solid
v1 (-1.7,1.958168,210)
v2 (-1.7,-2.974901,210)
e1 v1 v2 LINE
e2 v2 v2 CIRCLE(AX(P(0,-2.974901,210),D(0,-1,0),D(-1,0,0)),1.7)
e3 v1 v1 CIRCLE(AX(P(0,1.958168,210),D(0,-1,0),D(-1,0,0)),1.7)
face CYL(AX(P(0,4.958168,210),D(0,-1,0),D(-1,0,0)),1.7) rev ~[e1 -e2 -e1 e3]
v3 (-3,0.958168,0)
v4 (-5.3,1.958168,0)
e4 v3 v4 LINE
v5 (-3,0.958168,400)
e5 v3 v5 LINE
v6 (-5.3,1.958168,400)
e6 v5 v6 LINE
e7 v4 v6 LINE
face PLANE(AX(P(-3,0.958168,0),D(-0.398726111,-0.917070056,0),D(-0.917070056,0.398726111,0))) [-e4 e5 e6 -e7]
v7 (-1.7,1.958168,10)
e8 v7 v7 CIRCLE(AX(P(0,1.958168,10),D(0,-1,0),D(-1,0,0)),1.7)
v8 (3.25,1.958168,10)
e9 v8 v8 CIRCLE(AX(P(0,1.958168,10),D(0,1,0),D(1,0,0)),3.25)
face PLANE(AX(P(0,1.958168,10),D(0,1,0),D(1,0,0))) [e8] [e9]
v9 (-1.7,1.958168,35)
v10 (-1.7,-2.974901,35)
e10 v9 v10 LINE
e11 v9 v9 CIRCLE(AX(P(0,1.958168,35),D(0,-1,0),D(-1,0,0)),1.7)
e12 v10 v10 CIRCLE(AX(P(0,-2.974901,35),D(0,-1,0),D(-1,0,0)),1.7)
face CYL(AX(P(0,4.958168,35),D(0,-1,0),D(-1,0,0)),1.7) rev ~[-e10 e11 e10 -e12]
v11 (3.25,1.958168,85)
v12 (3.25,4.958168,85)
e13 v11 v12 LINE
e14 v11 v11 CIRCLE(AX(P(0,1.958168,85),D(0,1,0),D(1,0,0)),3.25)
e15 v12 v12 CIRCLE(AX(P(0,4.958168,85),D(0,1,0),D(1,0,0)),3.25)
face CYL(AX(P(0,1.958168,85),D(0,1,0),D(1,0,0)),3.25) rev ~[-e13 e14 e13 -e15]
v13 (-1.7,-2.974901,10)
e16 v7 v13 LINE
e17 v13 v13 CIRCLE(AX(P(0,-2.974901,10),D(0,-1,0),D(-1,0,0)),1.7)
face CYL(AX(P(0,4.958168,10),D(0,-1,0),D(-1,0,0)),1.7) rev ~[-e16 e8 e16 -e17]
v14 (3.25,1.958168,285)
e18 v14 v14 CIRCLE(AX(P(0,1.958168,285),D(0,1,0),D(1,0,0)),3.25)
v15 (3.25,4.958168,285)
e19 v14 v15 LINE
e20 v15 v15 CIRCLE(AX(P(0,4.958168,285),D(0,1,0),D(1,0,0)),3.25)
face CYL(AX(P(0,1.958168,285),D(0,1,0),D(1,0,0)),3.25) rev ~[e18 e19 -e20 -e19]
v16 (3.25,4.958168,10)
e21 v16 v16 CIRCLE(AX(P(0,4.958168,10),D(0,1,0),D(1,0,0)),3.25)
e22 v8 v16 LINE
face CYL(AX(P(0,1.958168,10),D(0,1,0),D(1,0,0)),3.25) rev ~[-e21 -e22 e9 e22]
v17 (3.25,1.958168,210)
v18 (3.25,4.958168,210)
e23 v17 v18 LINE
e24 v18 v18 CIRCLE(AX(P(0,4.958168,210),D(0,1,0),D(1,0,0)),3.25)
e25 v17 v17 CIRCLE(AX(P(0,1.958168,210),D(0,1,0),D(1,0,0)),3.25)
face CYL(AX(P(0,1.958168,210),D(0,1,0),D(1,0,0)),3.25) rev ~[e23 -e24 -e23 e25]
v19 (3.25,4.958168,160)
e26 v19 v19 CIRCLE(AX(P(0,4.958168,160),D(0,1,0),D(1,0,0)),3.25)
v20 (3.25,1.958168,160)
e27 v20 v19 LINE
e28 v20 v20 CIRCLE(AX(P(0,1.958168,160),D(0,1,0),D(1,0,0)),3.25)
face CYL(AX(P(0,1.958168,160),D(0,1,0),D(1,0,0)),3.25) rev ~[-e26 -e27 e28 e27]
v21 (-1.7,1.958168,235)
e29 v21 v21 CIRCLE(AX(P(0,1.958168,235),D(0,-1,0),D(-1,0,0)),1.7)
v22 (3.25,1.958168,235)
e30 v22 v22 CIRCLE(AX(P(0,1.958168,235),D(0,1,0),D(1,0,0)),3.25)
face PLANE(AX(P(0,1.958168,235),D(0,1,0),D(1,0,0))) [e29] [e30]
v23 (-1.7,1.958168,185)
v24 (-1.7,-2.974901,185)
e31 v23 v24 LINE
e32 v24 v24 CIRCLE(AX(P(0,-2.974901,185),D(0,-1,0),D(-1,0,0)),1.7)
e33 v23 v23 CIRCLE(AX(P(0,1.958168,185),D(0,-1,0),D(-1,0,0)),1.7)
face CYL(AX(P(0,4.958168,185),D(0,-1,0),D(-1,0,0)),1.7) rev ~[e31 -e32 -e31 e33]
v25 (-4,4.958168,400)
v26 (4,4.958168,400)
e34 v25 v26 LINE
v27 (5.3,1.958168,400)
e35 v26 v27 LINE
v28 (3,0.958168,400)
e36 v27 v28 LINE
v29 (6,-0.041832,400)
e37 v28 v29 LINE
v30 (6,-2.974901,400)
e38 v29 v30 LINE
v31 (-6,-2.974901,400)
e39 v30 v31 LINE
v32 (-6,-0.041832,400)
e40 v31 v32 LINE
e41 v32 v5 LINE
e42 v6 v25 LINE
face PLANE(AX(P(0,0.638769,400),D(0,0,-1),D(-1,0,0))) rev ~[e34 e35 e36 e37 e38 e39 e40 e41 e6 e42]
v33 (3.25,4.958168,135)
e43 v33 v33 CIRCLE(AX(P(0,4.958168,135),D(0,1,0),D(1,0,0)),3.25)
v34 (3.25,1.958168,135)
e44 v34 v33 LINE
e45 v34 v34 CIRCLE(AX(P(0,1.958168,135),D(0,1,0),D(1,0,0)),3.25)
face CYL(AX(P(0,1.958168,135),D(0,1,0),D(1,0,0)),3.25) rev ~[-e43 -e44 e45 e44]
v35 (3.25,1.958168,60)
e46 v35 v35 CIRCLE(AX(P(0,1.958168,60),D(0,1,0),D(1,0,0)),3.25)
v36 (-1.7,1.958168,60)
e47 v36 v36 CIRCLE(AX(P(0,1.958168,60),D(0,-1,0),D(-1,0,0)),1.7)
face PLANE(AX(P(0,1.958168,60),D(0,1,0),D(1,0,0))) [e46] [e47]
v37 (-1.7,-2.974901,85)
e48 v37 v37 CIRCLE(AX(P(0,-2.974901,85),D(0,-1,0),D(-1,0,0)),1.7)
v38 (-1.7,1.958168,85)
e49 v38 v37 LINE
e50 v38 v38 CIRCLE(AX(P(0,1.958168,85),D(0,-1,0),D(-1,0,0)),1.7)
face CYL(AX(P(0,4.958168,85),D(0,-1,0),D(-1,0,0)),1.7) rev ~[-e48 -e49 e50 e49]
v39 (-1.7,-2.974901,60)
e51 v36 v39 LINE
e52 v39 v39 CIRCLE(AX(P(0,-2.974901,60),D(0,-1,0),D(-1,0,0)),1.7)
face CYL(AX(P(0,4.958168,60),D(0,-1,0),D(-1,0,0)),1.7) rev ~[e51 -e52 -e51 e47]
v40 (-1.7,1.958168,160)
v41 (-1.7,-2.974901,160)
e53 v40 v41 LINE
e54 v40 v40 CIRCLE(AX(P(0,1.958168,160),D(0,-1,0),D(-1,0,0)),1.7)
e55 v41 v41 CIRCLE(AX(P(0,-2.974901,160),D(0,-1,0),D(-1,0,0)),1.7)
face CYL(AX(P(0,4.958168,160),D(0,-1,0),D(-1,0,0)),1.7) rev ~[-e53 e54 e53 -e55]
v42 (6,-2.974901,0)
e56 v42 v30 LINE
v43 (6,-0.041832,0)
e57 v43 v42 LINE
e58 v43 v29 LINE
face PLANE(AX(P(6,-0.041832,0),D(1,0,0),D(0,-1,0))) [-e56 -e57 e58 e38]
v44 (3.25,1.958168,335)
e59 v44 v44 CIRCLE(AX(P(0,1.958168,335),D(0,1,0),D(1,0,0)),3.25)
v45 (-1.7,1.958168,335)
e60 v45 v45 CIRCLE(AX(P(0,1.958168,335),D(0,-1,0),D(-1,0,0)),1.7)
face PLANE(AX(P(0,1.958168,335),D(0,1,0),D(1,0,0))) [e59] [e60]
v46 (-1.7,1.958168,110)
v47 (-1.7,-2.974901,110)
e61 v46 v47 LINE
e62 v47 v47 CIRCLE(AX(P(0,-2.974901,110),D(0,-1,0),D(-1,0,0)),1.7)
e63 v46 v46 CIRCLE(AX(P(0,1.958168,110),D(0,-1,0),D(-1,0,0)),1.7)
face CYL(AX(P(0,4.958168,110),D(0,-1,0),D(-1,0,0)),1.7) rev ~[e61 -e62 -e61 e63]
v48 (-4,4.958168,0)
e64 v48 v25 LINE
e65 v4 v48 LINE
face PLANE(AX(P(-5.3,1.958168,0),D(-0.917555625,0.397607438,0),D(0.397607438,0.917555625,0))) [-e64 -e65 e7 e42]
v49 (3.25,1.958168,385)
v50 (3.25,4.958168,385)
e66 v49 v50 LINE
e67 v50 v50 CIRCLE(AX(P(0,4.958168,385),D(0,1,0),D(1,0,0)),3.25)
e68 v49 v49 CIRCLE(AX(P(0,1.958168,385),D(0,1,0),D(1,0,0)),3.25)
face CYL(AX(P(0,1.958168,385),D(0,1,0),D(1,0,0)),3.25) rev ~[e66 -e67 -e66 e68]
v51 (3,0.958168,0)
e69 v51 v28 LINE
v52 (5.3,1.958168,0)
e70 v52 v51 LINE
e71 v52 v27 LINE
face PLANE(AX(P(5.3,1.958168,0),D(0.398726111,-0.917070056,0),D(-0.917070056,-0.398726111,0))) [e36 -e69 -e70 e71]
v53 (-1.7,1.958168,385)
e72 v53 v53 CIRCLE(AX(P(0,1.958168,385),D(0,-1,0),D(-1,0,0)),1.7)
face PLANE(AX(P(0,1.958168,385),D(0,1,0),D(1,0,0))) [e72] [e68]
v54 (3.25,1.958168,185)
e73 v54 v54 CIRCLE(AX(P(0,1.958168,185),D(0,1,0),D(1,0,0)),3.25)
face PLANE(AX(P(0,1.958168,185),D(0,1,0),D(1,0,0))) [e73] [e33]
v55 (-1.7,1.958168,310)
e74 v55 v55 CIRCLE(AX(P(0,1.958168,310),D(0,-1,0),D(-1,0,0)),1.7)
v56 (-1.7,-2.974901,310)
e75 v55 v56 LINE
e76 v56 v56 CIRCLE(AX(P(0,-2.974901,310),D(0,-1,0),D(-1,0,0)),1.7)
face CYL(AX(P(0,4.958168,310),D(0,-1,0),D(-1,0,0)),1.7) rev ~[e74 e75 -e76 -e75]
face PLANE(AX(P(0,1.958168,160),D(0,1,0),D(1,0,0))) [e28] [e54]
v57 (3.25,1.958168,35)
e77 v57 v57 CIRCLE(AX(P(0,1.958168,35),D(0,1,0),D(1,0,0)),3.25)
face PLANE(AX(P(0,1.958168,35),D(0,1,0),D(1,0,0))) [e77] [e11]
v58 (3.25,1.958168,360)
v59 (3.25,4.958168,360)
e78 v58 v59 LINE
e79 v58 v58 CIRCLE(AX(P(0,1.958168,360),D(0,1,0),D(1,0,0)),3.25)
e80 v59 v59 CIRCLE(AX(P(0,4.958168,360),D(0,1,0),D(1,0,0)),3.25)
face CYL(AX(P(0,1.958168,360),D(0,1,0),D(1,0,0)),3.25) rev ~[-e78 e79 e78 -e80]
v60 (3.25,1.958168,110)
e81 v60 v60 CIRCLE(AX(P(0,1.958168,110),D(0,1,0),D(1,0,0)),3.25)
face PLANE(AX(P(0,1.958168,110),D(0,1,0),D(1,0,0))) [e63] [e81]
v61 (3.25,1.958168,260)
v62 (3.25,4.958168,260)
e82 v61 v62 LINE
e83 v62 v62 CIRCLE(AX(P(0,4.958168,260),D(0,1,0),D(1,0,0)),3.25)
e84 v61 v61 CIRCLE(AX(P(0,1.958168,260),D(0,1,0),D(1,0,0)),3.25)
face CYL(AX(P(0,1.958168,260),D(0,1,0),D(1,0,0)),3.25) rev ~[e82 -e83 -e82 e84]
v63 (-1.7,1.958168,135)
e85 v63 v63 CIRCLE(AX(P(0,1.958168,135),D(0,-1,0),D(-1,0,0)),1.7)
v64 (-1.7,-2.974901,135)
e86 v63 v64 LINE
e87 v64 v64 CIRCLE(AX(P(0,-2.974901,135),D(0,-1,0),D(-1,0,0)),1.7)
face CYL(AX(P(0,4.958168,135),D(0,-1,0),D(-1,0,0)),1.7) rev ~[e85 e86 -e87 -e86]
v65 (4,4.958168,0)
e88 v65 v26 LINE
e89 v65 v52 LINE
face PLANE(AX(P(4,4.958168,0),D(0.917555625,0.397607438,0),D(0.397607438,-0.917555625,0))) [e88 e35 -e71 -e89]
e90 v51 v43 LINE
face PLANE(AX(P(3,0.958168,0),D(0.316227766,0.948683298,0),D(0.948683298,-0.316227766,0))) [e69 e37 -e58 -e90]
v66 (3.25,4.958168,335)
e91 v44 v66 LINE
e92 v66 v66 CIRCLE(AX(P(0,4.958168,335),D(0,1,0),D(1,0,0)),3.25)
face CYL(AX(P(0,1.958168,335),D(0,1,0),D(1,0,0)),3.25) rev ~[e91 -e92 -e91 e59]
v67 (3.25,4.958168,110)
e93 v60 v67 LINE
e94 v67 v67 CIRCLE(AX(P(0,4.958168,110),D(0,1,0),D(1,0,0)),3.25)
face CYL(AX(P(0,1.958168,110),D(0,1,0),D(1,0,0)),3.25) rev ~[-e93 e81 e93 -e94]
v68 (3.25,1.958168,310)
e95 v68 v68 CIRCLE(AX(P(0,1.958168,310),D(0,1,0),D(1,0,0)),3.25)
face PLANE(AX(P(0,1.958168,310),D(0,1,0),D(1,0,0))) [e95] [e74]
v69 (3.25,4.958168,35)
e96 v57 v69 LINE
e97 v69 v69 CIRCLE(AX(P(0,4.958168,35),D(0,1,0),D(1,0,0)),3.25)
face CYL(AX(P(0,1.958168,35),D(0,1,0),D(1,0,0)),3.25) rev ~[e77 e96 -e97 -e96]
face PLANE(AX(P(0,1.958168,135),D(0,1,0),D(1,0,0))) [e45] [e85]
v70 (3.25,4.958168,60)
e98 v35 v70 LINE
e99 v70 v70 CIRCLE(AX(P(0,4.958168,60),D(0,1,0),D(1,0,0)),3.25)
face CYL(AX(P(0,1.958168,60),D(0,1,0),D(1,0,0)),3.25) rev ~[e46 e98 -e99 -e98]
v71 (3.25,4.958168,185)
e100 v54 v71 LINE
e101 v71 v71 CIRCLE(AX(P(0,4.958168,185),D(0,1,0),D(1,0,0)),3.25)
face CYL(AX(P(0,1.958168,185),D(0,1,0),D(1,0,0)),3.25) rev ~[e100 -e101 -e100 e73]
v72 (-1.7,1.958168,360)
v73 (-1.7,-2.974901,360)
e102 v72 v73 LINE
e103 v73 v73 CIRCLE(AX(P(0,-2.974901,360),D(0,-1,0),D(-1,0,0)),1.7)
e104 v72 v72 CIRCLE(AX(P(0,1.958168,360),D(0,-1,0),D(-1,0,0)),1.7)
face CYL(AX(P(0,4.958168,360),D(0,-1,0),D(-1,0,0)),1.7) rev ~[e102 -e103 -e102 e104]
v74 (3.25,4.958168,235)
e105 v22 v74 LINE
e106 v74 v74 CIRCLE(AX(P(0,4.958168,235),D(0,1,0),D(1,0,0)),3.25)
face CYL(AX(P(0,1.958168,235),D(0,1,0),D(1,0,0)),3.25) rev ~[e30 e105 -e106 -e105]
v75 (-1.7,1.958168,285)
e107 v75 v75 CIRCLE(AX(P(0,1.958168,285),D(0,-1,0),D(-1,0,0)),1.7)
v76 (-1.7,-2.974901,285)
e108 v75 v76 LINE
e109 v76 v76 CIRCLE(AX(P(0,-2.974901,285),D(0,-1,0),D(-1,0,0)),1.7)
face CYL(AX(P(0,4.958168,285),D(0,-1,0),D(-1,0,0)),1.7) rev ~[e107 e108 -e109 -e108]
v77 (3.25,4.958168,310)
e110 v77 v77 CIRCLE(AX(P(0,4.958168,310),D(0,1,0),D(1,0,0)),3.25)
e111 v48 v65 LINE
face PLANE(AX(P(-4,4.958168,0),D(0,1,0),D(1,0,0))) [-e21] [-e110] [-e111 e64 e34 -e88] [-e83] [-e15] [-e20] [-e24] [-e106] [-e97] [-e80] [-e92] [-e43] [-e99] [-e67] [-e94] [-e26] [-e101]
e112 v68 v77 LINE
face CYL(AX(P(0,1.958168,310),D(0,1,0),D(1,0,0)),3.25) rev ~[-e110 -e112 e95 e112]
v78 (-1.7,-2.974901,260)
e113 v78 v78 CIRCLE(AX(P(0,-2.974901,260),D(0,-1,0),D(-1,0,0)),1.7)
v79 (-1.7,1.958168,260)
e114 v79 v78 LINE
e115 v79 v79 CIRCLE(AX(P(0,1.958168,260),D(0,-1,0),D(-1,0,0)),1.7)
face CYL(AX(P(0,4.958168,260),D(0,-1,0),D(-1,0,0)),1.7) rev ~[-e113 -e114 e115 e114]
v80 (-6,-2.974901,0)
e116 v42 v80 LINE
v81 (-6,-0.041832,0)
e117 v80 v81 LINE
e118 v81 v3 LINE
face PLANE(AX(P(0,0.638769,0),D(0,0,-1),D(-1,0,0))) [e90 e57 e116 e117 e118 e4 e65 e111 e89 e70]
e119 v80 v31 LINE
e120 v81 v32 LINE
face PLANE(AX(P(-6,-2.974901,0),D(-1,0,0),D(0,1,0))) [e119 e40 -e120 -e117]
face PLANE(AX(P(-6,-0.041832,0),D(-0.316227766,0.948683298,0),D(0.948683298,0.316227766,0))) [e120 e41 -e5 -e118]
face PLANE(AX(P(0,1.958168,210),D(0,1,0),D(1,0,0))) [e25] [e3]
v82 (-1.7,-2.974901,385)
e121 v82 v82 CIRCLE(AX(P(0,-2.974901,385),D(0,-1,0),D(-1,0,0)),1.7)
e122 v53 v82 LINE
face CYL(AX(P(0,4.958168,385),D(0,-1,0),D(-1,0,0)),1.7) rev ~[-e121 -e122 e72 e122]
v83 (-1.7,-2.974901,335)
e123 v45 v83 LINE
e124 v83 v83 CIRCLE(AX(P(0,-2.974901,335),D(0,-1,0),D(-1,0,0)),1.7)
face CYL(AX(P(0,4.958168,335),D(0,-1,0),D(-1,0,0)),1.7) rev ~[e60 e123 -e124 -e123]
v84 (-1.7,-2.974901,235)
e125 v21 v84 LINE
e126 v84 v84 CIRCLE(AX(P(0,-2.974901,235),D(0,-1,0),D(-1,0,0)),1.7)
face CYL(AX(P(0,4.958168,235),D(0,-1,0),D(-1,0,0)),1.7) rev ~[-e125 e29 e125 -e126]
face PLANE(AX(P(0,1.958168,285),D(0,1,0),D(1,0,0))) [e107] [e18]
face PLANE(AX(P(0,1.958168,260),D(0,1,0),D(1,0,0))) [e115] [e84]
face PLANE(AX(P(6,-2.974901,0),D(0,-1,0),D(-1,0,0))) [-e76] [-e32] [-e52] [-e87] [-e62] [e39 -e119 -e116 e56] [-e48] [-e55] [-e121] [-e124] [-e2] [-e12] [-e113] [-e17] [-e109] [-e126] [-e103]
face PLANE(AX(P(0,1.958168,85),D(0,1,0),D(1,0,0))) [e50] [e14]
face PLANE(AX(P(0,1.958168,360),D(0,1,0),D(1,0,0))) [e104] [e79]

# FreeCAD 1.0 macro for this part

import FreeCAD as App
import Part
import Sketcher

V = App.Vector


def add_polygon(sketch, points):
    """Adds a closed chain of lines whose ends are joined by coincident constraints."""
    first, n = sketch.GeometryCount, len(points)
    for a, b in zip(points, points[1:] + points[:1]):
        sketch.addGeometry(Part.LineSegment(App.Vector(*a, 0), App.Vector(*b, 0)), False)
    for i in range(n):
        sketch.addConstraint(Sketcher.Constraint("Coincident", first + i, 2, first + (i + 1) % n, 1))

doc = App.newDocument("Part")
body = doc.addObject("PartDesign::Body", "Body")

sketch1 = body.newObject("Sketcher::SketchObject", "Sketch")
sketch1.AttachmentSupport = (doc.getObject("XY_Plane"), [""])
sketch1.MapMode = "FlatFace"
add_polygon(sketch1, [(4, 5), (5.3, 2), (3, 1), (6, 0), (6, -3), (-6, -3), (-6, 0), (-3, 1), (-5.3, 2), (-4, 5)])
sketch1.addConstraint([
    Sketcher.Constraint("Vertical", 3),
    Sketcher.Constraint("Horizontal", 4),
    Sketcher.Constraint("Vertical", 5),
    Sketcher.Constraint("Horizontal", 9),
    Sketcher.Constraint("Symmetric", 2, 2, 5, 2, -2),
    Sketcher.Constraint("Symmetric", 1, 2, 6, 2, -2),
    Sketcher.Constraint("Symmetric", 0, 2, 7, 2, -2),
    Sketcher.Constraint("Equal", 0, 8),
    Sketcher.Constraint("DistanceX", 4, 2, 4, 1, 12.0),
    Sketcher.Constraint("DistanceX", 9, 1, 9, 2, 8.0),
    Sketcher.Constraint("DistanceX", -1, 1, 1, 2, 3.0),
    Sketcher.Constraint("DistanceY", 1, 2, 0, 2, 1.0),
    Sketcher.Constraint("DistanceY", 2, 2, 0, 2, 2.0),
    Sketcher.Constraint("DistanceY", 7, 2, 8, 2, 3.0),
    Sketcher.Constraint("DistanceX", -1, 1, 0, 2, 5.3),
    Sketcher.Constraint("DistanceY", 3, 2, 3, 1, 2.933069),
    Sketcher.Constraint("DistanceY", 3, 2, -1, 1, 2.974901),
])
pad1 = body.newObject("PartDesign::Pad", "Pad")
pad1.Profile = sketch1
pad1.Length = 400

sketch2 = body.newObject("Sketcher::SketchObject", "Sketch001")
sketch2.AttachmentSupport = (doc.getObject("XZ_Plane"), [""])
sketch2.MapMode = "FlatFace"
sketch2.AttachmentOffset = App.Placement(V(0, 0, -4.958168), App.Rotation())
sketch2.addGeometry([
    Part.Circle(V(0, 385, 0), V(0, 0, 1), 1.7),
    Part.Circle(V(0, 360, 0), V(0, 0, 1), 1.7),
    Part.Circle(V(0, 335, 0), V(0, 0, 1), 1.7),
    Part.Circle(V(0, 310, 0), V(0, 0, 1), 1.7),
    Part.Circle(V(0, 285, 0), V(0, 0, 1), 1.7),
    Part.Circle(V(0, 260, 0), V(0, 0, 1), 1.7),
    Part.Circle(V(0, 235, 0), V(0, 0, 1), 1.7),
    Part.Circle(V(0, 210, 0), V(0, 0, 1), 1.7),
    Part.Circle(V(0, 185, 0), V(0, 0, 1), 1.7),
    Part.Circle(V(0, 160, 0), V(0, 0, 1), 1.7),
    Part.Circle(V(0, 135, 0), V(0, 0, 1), 1.7),
    Part.Circle(V(0, 110, 0), V(0, 0, 1), 1.7),
    Part.Circle(V(0, 85, 0), V(0, 0, 1), 1.7),
    Part.Circle(V(0, 60, 0), V(0, 0, 1), 1.7),
    Part.Circle(V(0, 10, 0), V(0, 0, 1), 1.7),
    Part.Circle(V(0, 35, 0), V(0, 0, 1), 1.7),
], False)
sketch2.addConstraint([
    Sketcher.Constraint("Equal", 0, 1),
    Sketcher.Constraint("Equal", 1, 2),
    Sketcher.Constraint("Equal", 2, 3),
    Sketcher.Constraint("Equal", 3, 4),
    Sketcher.Constraint("Equal", 4, 5),
    Sketcher.Constraint("Equal", 5, 6),
    Sketcher.Constraint("Equal", 6, 7),
    Sketcher.Constraint("Equal", 7, 8),
    Sketcher.Constraint("Equal", 8, 9),
    Sketcher.Constraint("Equal", 9, 10),
    Sketcher.Constraint("Equal", 10, 11),
    Sketcher.Constraint("Equal", 11, 12),
    Sketcher.Constraint("Equal", 12, 13),
    Sketcher.Constraint("Equal", 13, 14),
    Sketcher.Constraint("Equal", 14, 15),
    Sketcher.Constraint("PointOnObject", 0, 3, -2),
    Sketcher.Constraint("PointOnObject", 1, 3, -2),
    Sketcher.Constraint("PointOnObject", 2, 3, -2),
    Sketcher.Constraint("PointOnObject", 3, 3, -2),
    Sketcher.Constraint("PointOnObject", 4, 3, -2),
    Sketcher.Constraint("PointOnObject", 5, 3, -2),
    Sketcher.Constraint("PointOnObject", 6, 3, -2),
    Sketcher.Constraint("PointOnObject", 7, 3, -2),
    Sketcher.Constraint("PointOnObject", 8, 3, -2),
    Sketcher.Constraint("PointOnObject", 9, 3, -2),
    Sketcher.Constraint("PointOnObject", 10, 3, -2),
    Sketcher.Constraint("PointOnObject", 11, 3, -2),
    Sketcher.Constraint("PointOnObject", 12, 3, -2),
    Sketcher.Constraint("PointOnObject", 13, 3, -2),
    Sketcher.Constraint("PointOnObject", 14, 3, -2),
    Sketcher.Constraint("PointOnObject", 15, 3, -2),
    Sketcher.Constraint("Diameter", 0, 3.4),
    Sketcher.Constraint("DistanceY", -1, 1, 0, 3, 385.0),
    Sketcher.Constraint("DistanceY", -1, 1, 1, 3, 360.0),
    Sketcher.Constraint("DistanceY", -1, 1, 2, 3, 335.0),
    Sketcher.Constraint("DistanceY", -1, 1, 3, 3, 310.0),
    Sketcher.Constraint("DistanceY", -1, 1, 4, 3, 285.0),
    Sketcher.Constraint("DistanceY", -1, 1, 5, 3, 260.0),
    Sketcher.Constraint("DistanceY", -1, 1, 6, 3, 235.0),
    Sketcher.Constraint("DistanceY", -1, 1, 7, 3, 210.0),
    Sketcher.Constraint("DistanceY", -1, 1, 8, 3, 185.0),
    Sketcher.Constraint("DistanceY", -1, 1, 9, 3, 160.0),
    Sketcher.Constraint("DistanceY", -1, 1, 10, 3, 135.0),
    Sketcher.Constraint("DistanceY", -1, 1, 11, 3, 110.0),
    Sketcher.Constraint("DistanceY", -1, 1, 12, 3, 85.0),
    Sketcher.Constraint("DistanceY", -1, 1, 13, 3, 60.0),
    Sketcher.Constraint("DistanceY", -1, 1, 14, 3, 10.0),
    Sketcher.Constraint("DistanceY", -1, 1, 15, 3, 35.0),
])
doc.recompute()
hole = body.newObject("PartDesign::Hole", "Hole")
hole.Profile = sketch2
hole.ThreadType = "None"
hole.Diameter = 3.4
hole.DepthType = "ThroughAll"
hole.HoleCutType = "Counterbore"
hole.HoleCutDiameter = 6.5
hole.HoleCutDepth = 3
hole.Reversed = True

doc.recompute()
